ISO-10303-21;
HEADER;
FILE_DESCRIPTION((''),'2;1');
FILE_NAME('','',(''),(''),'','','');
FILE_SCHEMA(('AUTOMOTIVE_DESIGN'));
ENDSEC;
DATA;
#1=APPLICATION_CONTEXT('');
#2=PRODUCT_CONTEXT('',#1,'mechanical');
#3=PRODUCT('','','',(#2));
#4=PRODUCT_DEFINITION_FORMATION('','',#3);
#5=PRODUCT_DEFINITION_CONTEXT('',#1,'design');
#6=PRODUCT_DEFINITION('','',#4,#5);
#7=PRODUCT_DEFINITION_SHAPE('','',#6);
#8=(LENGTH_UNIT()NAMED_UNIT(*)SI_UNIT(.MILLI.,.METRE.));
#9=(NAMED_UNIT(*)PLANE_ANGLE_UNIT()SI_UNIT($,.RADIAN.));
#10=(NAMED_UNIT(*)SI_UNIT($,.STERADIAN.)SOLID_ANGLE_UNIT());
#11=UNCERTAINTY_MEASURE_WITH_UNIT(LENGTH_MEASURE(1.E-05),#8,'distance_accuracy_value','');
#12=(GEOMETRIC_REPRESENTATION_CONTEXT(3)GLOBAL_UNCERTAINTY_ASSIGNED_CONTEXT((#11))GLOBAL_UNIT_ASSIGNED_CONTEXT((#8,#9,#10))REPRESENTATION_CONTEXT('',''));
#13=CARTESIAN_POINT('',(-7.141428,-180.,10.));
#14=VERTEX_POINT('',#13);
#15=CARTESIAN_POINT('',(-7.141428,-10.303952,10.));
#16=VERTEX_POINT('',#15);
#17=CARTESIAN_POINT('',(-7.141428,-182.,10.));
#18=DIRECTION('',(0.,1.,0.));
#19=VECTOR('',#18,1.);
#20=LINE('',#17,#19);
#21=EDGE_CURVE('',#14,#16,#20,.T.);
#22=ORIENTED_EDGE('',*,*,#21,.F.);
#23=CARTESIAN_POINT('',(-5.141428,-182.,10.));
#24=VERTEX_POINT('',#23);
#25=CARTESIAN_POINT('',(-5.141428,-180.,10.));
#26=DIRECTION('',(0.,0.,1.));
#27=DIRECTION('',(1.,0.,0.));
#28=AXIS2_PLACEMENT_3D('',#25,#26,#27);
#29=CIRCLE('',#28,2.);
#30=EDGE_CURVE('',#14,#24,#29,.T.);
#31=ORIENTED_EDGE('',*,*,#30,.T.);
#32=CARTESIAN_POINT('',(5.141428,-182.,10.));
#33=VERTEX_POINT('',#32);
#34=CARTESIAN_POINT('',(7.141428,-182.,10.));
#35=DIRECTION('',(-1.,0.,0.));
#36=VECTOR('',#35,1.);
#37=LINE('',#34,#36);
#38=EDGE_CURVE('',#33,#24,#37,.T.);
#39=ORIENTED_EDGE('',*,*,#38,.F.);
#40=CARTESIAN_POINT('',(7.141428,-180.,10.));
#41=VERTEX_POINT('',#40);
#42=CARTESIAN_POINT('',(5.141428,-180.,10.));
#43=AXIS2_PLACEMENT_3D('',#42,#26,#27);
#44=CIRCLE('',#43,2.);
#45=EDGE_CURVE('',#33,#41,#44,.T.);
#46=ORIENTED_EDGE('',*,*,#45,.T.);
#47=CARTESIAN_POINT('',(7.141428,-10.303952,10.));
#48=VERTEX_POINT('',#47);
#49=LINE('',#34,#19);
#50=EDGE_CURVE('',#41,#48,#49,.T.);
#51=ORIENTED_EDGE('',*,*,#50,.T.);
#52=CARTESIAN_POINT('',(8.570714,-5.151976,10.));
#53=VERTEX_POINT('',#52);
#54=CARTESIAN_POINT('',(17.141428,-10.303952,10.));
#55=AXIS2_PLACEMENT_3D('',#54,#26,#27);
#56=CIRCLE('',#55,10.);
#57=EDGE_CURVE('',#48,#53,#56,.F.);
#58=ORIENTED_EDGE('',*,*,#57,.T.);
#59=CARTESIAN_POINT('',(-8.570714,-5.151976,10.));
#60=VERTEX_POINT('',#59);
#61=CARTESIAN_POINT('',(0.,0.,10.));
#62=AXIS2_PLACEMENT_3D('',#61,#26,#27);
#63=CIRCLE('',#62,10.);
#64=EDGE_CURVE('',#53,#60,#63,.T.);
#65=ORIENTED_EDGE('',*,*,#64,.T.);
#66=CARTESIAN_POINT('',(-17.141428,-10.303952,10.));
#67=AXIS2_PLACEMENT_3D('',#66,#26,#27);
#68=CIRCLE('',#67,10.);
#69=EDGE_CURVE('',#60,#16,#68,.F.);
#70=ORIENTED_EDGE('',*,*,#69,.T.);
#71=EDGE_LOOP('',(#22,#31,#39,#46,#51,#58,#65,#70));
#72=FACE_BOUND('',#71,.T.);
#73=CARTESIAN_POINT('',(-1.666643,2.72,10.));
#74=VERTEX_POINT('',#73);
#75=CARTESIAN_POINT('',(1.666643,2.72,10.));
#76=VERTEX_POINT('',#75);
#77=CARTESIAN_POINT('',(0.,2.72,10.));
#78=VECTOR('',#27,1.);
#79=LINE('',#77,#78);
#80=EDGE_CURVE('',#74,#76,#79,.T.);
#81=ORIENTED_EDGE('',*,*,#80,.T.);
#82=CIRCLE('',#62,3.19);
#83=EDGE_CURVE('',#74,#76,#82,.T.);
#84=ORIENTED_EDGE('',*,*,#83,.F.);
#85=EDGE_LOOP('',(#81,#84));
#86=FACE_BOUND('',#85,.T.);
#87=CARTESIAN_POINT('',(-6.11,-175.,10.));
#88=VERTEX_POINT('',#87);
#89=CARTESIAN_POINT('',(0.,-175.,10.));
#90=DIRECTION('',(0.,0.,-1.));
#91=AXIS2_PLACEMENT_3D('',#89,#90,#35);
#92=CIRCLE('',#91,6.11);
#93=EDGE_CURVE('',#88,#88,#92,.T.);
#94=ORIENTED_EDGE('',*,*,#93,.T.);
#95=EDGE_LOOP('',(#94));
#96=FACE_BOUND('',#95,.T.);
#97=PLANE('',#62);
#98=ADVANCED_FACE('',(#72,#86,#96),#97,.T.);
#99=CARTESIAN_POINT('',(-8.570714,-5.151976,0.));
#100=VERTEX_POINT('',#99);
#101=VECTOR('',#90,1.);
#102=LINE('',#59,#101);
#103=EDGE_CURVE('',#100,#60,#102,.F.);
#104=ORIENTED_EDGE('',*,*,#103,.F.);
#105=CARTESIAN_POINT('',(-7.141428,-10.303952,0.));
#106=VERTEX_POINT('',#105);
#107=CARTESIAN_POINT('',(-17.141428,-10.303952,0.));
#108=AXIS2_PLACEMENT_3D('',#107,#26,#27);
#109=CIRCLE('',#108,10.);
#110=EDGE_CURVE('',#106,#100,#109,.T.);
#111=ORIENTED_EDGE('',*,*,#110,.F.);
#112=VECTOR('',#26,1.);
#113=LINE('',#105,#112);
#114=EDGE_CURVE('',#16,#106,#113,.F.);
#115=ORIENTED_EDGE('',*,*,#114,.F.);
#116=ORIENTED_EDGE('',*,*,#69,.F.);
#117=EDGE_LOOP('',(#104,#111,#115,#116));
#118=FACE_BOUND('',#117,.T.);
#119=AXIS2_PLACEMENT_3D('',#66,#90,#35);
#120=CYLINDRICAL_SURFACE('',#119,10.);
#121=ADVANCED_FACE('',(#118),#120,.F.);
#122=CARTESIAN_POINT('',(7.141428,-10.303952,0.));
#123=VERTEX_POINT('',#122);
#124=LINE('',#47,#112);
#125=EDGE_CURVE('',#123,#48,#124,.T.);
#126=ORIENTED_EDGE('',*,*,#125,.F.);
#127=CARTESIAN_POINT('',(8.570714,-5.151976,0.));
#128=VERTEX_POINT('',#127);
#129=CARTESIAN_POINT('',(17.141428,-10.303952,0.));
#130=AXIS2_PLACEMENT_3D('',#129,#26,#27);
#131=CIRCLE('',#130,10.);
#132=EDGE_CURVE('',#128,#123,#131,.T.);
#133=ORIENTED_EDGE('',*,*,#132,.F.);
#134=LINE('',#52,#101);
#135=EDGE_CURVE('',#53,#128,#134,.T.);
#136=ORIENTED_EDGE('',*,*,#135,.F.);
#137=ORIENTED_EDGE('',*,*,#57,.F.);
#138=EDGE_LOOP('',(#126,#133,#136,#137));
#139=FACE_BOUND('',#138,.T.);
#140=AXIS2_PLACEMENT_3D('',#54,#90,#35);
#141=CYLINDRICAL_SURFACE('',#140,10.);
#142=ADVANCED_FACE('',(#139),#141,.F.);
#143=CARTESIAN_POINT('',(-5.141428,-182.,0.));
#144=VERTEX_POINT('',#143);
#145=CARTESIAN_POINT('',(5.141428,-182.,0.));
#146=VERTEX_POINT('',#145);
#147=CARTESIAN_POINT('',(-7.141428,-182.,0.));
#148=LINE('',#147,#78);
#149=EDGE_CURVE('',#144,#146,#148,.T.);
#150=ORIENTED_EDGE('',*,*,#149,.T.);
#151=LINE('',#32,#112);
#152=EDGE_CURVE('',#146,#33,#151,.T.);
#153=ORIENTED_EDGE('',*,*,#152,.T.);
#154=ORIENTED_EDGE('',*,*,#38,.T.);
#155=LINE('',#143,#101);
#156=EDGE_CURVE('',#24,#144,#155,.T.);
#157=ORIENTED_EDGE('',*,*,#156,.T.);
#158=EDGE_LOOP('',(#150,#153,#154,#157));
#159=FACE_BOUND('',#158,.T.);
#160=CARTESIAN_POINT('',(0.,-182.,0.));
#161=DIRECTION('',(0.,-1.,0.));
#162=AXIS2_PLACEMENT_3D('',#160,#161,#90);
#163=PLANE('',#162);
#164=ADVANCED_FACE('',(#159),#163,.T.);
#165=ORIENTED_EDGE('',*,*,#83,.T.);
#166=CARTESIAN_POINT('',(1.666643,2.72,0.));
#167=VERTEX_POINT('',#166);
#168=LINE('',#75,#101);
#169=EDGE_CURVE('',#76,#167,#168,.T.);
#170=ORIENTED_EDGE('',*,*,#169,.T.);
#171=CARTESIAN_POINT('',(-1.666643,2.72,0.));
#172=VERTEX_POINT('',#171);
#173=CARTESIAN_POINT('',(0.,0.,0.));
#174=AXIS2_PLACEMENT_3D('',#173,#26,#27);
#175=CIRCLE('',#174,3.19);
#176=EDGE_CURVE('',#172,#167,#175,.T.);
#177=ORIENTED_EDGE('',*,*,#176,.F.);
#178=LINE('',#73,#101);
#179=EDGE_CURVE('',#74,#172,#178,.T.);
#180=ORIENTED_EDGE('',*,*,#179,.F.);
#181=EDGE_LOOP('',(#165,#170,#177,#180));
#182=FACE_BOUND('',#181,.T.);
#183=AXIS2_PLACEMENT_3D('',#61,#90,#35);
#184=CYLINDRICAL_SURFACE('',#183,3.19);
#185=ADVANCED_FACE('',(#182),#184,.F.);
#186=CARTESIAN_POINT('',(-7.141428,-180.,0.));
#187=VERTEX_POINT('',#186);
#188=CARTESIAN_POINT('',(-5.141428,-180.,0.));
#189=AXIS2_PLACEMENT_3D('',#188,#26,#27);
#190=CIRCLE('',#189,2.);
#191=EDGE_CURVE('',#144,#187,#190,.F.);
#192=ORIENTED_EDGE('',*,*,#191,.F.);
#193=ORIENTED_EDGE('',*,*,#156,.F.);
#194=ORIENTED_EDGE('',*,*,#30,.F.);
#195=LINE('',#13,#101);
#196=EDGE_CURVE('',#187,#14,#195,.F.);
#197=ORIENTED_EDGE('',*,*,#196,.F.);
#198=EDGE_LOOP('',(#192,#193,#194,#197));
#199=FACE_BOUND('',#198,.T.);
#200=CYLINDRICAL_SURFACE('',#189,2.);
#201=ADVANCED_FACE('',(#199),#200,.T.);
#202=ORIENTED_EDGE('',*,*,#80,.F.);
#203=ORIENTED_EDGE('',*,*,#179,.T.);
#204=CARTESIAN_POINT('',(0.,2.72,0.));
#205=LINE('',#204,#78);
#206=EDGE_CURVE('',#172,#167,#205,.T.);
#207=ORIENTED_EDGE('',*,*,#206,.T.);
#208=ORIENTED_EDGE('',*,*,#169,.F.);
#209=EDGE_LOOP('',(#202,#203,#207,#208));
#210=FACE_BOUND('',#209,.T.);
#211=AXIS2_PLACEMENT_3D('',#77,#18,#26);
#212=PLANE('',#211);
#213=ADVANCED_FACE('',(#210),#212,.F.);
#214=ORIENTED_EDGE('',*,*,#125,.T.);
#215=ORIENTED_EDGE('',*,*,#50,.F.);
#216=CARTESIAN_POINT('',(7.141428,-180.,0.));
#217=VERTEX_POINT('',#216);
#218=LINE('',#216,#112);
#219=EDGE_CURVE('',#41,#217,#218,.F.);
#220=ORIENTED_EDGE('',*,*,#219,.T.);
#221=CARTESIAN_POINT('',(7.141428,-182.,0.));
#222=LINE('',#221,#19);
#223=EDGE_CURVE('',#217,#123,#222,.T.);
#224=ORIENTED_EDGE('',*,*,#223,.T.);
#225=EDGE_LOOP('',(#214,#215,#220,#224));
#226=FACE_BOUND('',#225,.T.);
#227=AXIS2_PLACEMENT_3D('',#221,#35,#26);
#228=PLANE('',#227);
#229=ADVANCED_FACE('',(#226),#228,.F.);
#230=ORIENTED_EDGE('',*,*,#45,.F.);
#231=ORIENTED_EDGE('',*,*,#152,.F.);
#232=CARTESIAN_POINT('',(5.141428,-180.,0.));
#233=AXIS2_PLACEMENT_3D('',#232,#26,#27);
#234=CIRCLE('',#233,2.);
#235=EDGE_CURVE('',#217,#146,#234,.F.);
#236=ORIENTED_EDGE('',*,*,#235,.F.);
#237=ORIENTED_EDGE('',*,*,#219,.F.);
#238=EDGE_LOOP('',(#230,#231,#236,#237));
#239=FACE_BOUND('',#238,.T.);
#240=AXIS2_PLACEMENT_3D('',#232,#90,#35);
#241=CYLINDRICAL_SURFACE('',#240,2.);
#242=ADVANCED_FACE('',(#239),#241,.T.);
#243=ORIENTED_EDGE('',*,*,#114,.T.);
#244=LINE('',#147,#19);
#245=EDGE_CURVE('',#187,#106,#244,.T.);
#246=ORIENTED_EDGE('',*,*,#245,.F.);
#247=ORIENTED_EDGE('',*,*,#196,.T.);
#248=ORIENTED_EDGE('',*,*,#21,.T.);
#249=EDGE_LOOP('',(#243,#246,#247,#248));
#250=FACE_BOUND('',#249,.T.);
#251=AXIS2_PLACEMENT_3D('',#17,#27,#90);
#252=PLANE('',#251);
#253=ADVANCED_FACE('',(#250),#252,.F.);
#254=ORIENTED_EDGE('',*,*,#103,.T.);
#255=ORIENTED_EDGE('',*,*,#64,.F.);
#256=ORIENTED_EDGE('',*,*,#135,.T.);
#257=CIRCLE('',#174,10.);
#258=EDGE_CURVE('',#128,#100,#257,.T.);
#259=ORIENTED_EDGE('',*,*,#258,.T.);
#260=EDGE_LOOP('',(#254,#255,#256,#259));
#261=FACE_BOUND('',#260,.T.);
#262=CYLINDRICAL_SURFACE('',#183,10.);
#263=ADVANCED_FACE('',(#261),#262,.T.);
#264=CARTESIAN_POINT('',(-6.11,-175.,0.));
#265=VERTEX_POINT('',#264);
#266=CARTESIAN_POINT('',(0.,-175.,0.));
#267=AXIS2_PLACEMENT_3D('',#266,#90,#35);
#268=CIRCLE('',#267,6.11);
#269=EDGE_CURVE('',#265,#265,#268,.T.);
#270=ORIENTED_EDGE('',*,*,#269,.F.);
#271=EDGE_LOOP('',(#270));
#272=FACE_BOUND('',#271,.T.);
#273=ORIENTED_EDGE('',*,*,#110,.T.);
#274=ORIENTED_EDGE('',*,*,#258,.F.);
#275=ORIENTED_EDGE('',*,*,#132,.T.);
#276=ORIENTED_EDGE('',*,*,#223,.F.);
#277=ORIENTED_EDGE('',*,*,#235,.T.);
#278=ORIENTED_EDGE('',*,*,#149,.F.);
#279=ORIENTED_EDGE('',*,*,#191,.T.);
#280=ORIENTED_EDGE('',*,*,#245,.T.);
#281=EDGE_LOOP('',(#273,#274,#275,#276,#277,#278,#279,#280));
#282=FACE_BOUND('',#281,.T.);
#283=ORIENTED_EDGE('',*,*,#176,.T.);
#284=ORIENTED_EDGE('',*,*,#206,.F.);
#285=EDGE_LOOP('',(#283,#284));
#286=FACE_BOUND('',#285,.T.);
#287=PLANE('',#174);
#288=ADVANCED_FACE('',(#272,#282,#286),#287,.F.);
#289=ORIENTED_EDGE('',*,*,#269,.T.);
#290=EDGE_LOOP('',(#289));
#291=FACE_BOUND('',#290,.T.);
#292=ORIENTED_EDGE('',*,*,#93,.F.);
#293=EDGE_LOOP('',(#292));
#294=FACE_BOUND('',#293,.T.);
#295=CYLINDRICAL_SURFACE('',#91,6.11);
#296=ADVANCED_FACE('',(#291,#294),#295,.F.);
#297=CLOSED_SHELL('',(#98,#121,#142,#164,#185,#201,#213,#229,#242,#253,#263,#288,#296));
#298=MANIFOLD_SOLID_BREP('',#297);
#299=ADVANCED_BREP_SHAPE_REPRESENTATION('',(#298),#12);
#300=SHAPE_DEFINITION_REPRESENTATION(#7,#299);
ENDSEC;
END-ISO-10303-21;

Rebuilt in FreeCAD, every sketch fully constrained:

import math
import FreeCAD as App
import Part
import Sketcher
from FreeCAD import Vector
Q = App.Units.Quantity


def edges_at(feature, points):
    """Names of the edges that pass closest to the given points."""
    edges = feature.Shape.Edges
    near = lambda p: min(range(len(edges)), key=lambda i: edges[i].distToShape(Part.Vertex(*p))[0])
    return sorted({f"Edge{near(p) + 1}" for p in points})


def add_polygon(sketch, points):
    """Adds a closed chain of lines whose ends are joined by coincident constraints."""
    first, n = sketch.GeometryCount, len(points)
    for a, b in zip(points, points[1:] + points[:1]):
        sketch.addGeometry(Part.LineSegment(App.Vector(*a, 0), App.Vector(*b, 0)), False)
    for i in range(n):
        sketch.addConstraint(Sketcher.Constraint("Coincident", first + i, 2, first + (i + 1) % n, 1))

doc = App.newDocument("Part")
body = doc.addObject("PartDesign::Body", "Body")

sketch1 = body.newObject("Sketcher::SketchObject", "Sketch")
sketch1.AttachmentSupport = (doc.getObject("XY_Plane"), [""])
sketch1.MapMode = "FlatFace"
sketch1.addGeometry([
    Part.Circle(Vector(0, 0, 0), Vector(0, 0, 1), 10),
    Part.ArcOfCircle(Part.Circle(Vector(0, 0, 0), Vector(0, 0, 1), 3.2), math.radians(121), math.radians(419)),
    Part.LineSegment(Vector(-1.7, 2.7, 0), Vector(1.7, 2.7, 0)),
], False)
sketch1.addConstraint([
    Sketcher.Constraint("Coincident", 1, 1, 2, 1),
    Sketcher.Constraint("Coincident", 2, 2, 1, 2),
    Sketcher.Constraint("Horizontal", 2),
    Sketcher.Constraint("Coincident", 0, 3, -1, 1),
    Sketcher.Constraint("Coincident", 1, 3, -1, 1),
    Sketcher.Constraint("Diameter", 0, Q("20 mm")),
    Sketcher.Constraint("Radius", 1, Q("3.19 mm")),
    Sketcher.Constraint("DistanceY", -1, 1, 1, 1, Q("2.72 mm")),
])
pad1 = body.newObject("PartDesign::Pad", "Pad")
pad1.Profile = sketch1
pad1.Length = 10

sketch2 = body.newObject("Sketcher::SketchObject", "Sketch001")
sketch2.AttachmentSupport = (doc.getObject("XY_Plane"), [""])
sketch2.MapMode = "FlatFace"
sketch2.addGeometry([
    Part.LineSegment(Vector(-7, -7, 0), Vector(7, -7, 0)),
    Part.ArcOfCircle(Part.Circle(Vector(0, 0, 0), Vector(0, 0, 1), 10), math.radians(-90), math.radians(-44)),
    Part.ArcOfCircle(Part.Circle(Vector(0, 0, 0), Vector(0, 0, 1), 10), math.radians(-136), math.radians(-90)),
], False)
sketch2.addConstraint([
    Sketcher.Constraint("Coincident", 0, 2, 1, 2),
    Sketcher.Constraint("Tangent", 1, 1, 2, 2),
    Sketcher.Constraint("Coincident", 2, 1, 0, 1),
    Sketcher.Constraint("Horizontal", 0),
    Sketcher.Constraint("Coincident", 1, 3, -1, 1),
    Sketcher.Constraint("Equal", 1, 2),
    Sketcher.Constraint("PointOnObject", 1, 1, -2),
    Sketcher.Constraint("Radius", 1, Q("10 mm")),
    Sketcher.Constraint("DistanceY", 0, 2, -1, 1, Q("7 mm")),
])
pocket1 = body.newObject("PartDesign::Pocket", "Pocket")
pocket1.Profile = sketch2
pocket1.Length = 10
pocket1.Reversed = True

sketch3 = body.newObject("Sketcher::SketchObject", "Sketch002")
sketch3.AttachmentSupport = (doc.getObject("XZ_Plane"), [""])
sketch3.MapMode = "FlatFace"
sketch3.AttachmentOffset = App.Placement(Vector(0, 0, 7), App.Rotation())
add_polygon(sketch3, [(-7, 10), (-7, 0), (7, 0), (7, 10)])
sketch3.addConstraint([
    Sketcher.Constraint("Vertical", 0),
    Sketcher.Constraint("Horizontal", 1),
    Sketcher.Constraint("Vertical", 2),
    Sketcher.Constraint("Horizontal", 3),
    Sketcher.Constraint("Symmetric", 0, 2, 1, 2, -1, 1),
    Sketcher.Constraint("DistanceY", 0, 2, 0, 1, Q("10 mm")),
    Sketcher.Constraint("DistanceX", 1, 1, 1, 2, Q("14.282857 mm")),
])
pad2 = body.newObject("PartDesign::Pad", "Pad001")
pad2.Profile = sketch3
pad2.Length = 175

sketch4 = body.newObject("Sketcher::SketchObject", "Sketch003")
sketch4.AttachmentSupport = (doc.getObject("XY_Plane"), [""])
sketch4.MapMode = "FlatFace"
sketch4.addGeometry(Part.Circle(Vector(0, -175, 0), Vector(0, 0, 1), 6), False)
sketch4.addConstraint([
    Sketcher.Constraint("PointOnObject", 0, 3, -2),
    Sketcher.Constraint("Diameter", 0, Q("12.22 mm")),
    Sketcher.Constraint("DistanceY", 0, 3, -1, 1, Q("175 mm")),
])
pocket2 = body.newObject("PartDesign::Pocket", "Pocket001")
pocket2.Profile = sketch4
pocket2.Length = 10
pocket2.Reversed = True
doc.recompute()

fillet = body.newObject("PartDesign::Fillet", "Fillet")
fillet.Base = (pocket2, edges_at(pocket2, [(7.141, -7, 5), (-7.141, -7, 5)]))
fillet.Radius = 10
doc.recompute()

fillet2 = body.newObject("PartDesign::Fillet", "Fillet001")
fillet2.Base = (fillet, edges_at(fillet, [(-7.141, -182, 5), (7.141, -182, 5)]))
fillet2.Radius = 2

doc.recompute()
